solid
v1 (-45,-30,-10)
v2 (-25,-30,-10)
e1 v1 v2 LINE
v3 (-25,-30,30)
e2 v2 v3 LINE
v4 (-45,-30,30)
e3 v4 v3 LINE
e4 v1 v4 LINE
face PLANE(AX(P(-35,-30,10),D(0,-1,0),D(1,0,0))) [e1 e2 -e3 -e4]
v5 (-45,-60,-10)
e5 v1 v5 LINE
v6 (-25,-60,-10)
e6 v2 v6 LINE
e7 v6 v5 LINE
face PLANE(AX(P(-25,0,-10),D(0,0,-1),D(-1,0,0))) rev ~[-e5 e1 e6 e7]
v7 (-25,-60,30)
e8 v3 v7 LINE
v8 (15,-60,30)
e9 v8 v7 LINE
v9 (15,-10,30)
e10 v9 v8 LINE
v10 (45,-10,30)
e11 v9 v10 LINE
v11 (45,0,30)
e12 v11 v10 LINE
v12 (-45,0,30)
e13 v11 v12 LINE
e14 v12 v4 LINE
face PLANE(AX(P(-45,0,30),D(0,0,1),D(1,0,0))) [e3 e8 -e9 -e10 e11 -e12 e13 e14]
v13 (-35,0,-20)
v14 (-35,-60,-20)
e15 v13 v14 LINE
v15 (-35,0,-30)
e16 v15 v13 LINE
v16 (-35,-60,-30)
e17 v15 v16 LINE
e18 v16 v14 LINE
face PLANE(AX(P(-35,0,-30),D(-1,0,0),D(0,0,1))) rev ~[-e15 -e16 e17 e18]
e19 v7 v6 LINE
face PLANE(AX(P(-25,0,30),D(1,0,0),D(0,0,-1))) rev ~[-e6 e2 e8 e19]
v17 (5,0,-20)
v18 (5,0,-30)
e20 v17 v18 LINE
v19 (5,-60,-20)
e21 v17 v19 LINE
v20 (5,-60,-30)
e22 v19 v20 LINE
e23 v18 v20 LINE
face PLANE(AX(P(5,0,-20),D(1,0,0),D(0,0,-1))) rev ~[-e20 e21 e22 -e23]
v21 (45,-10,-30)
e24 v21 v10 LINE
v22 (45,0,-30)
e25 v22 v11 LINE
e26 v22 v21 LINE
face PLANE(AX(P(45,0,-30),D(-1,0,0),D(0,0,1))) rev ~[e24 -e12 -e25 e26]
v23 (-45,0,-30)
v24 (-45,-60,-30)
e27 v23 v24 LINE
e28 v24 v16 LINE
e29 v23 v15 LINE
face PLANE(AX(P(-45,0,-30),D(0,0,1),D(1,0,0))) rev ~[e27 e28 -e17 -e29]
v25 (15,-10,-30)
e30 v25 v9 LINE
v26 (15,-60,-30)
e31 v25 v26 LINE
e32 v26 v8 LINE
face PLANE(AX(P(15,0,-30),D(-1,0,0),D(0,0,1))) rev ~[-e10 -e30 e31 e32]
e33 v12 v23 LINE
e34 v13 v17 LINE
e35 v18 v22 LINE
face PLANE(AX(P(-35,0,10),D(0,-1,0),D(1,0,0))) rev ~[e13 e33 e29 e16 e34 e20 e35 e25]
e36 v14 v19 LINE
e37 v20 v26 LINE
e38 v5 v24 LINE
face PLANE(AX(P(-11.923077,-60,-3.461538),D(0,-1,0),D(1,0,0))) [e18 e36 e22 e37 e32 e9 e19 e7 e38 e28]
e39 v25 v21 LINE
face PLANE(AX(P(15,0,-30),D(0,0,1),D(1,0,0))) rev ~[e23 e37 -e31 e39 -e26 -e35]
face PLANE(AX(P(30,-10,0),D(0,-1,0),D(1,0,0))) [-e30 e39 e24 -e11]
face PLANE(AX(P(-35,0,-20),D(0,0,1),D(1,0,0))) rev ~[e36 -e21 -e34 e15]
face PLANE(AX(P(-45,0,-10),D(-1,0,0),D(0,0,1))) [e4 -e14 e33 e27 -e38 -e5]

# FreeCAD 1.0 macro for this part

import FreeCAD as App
import Part
import Sketcher


def add_polygon(sketch, points):
    """Adds a closed chain of lines whose ends are joined by coincident constraints."""
    first, n = sketch.GeometryCount, len(points)
    for a, b in zip(points, points[1:] + points[:1]):
        sketch.addGeometry(Part.LineSegment(App.Vector(*a, 0), App.Vector(*b, 0)), False)
    for i in range(n):
        sketch.addConstraint(Sketcher.Constraint("Coincident", first + i, 2, first + (i + 1) % n, 1))

doc = App.newDocument("Part")
body = doc.addObject("PartDesign::Body", "Body")

# Sketch on XZ plane
sketch1 = body.newObject("Sketcher::SketchObject", "Sketch")
sketch1.AttachmentSupport = (doc.getObject("XZ_Plane"), [""])
sketch1.MapMode = "FlatFace"
add_polygon(sketch1, [(15, -30), (15, 30), (-25, 30), (-25, -10), (-45, -10), (-45, -30), (-35, -30), (-35, -20), (5, -20), (5, -30)])  # lines 0-9
sketch1.addConstraint([
    Sketcher.Constraint("Vertical", 0),
    Sketcher.Constraint("Horizontal", 1),
    Sketcher.Constraint("Vertical", 2),
    Sketcher.Constraint("Horizontal", 3),
    Sketcher.Constraint("Vertical", 4),
    Sketcher.Constraint("Horizontal", 5),
    Sketcher.Constraint("Vertical", 6),
    Sketcher.Constraint("Horizontal", 7),
    Sketcher.Constraint("Vertical", 8),
    Sketcher.Constraint("Horizontal", 9),
    Sketcher.Constraint("Horizontal", 5, 2, 8, 2),
    Sketcher.Constraint("Equal", 1, 7),
    Sketcher.Constraint("Equal", 5, 9),
    Sketcher.Constraint("Equal", 7, 2),
    Sketcher.Constraint("Equal", 3, 4),
    Sketcher.Constraint("Equal", 9, 6),
    Sketcher.Constraint("DistanceX", 1, 2, 1, 1, 40.0),
    Sketcher.Constraint("DistanceX", 3, 2, 3, 1, 20.0),
    Sketcher.Constraint("DistanceX", -1, 1, 0, 2, 15.0),
    Sketcher.Constraint("DistanceY", -1, 1, 0, 2, 30.0),
])
pad1 = body.newObject("PartDesign::Pad", "Pad")
pad1.Profile = sketch1
pad1.Length = 60

# Sketch on XZ plane
sketch2 = body.newObject("Sketcher::SketchObject", "Sketch001")
sketch2.AttachmentSupport = (doc.getObject("XZ_Plane"), [""])
sketch2.MapMode = "FlatFace"
add_polygon(sketch2, [(15, 30), (15, -30), (45, -30), (45, 30)])  # lines 0-3
sketch2.addConstraint([
    Sketcher.Constraint("Vertical", 0),
    Sketcher.Constraint("Horizontal", 1),
    Sketcher.Constraint("Vertical", 2),
    Sketcher.Constraint("Horizontal", 3),
    Sketcher.Constraint("DistanceX", 1, 1, 1, 2, 30.0),
    Sketcher.Constraint("DistanceY", 0, 2, 0, 1, 60.0),
    Sketcher.Constraint("DistanceX", -1, 1, 0, 2, 15.0),
    Sketcher.Constraint("DistanceY", 0, 2, -1, 1, 30.0),
])
pad2 = body.newObject("PartDesign::Pad", "Pad001")
pad2.Profile = sketch2
pad2.Length = 10

# Sketch on XZ plane
sketch3 = body.newObject("Sketcher::SketchObject", "Sketch002")
sketch3.AttachmentSupport = (doc.getObject("XZ_Plane"), [""])
sketch3.MapMode = "FlatFace"
add_polygon(sketch3, [(-45, 30), (-45, -10), (-25, -10), (-25, 30)])  # lines 0-3
sketch3.addConstraint([
    Sketcher.Constraint("Vertical", 0),
    Sketcher.Constraint("Horizontal", 1),
    Sketcher.Constraint("Vertical", 2),
    Sketcher.Constraint("Horizontal", 3),
    Sketcher.Constraint("DistanceX", 1, 1, 1, 2, 20.0),
    Sketcher.Constraint("DistanceY", 0, 2, 0, 1, 40.0),
    Sketcher.Constraint("DistanceX", 0, 2, -1, 1, 45.0),
    Sketcher.Constraint("DistanceY", 0, 2, -1, 1, 10.0),
])
pad3 = body.newObject("PartDesign::Pad", "Pad002")
pad3.Profile = sketch3
pad3.Length = 30

doc.recompute()
